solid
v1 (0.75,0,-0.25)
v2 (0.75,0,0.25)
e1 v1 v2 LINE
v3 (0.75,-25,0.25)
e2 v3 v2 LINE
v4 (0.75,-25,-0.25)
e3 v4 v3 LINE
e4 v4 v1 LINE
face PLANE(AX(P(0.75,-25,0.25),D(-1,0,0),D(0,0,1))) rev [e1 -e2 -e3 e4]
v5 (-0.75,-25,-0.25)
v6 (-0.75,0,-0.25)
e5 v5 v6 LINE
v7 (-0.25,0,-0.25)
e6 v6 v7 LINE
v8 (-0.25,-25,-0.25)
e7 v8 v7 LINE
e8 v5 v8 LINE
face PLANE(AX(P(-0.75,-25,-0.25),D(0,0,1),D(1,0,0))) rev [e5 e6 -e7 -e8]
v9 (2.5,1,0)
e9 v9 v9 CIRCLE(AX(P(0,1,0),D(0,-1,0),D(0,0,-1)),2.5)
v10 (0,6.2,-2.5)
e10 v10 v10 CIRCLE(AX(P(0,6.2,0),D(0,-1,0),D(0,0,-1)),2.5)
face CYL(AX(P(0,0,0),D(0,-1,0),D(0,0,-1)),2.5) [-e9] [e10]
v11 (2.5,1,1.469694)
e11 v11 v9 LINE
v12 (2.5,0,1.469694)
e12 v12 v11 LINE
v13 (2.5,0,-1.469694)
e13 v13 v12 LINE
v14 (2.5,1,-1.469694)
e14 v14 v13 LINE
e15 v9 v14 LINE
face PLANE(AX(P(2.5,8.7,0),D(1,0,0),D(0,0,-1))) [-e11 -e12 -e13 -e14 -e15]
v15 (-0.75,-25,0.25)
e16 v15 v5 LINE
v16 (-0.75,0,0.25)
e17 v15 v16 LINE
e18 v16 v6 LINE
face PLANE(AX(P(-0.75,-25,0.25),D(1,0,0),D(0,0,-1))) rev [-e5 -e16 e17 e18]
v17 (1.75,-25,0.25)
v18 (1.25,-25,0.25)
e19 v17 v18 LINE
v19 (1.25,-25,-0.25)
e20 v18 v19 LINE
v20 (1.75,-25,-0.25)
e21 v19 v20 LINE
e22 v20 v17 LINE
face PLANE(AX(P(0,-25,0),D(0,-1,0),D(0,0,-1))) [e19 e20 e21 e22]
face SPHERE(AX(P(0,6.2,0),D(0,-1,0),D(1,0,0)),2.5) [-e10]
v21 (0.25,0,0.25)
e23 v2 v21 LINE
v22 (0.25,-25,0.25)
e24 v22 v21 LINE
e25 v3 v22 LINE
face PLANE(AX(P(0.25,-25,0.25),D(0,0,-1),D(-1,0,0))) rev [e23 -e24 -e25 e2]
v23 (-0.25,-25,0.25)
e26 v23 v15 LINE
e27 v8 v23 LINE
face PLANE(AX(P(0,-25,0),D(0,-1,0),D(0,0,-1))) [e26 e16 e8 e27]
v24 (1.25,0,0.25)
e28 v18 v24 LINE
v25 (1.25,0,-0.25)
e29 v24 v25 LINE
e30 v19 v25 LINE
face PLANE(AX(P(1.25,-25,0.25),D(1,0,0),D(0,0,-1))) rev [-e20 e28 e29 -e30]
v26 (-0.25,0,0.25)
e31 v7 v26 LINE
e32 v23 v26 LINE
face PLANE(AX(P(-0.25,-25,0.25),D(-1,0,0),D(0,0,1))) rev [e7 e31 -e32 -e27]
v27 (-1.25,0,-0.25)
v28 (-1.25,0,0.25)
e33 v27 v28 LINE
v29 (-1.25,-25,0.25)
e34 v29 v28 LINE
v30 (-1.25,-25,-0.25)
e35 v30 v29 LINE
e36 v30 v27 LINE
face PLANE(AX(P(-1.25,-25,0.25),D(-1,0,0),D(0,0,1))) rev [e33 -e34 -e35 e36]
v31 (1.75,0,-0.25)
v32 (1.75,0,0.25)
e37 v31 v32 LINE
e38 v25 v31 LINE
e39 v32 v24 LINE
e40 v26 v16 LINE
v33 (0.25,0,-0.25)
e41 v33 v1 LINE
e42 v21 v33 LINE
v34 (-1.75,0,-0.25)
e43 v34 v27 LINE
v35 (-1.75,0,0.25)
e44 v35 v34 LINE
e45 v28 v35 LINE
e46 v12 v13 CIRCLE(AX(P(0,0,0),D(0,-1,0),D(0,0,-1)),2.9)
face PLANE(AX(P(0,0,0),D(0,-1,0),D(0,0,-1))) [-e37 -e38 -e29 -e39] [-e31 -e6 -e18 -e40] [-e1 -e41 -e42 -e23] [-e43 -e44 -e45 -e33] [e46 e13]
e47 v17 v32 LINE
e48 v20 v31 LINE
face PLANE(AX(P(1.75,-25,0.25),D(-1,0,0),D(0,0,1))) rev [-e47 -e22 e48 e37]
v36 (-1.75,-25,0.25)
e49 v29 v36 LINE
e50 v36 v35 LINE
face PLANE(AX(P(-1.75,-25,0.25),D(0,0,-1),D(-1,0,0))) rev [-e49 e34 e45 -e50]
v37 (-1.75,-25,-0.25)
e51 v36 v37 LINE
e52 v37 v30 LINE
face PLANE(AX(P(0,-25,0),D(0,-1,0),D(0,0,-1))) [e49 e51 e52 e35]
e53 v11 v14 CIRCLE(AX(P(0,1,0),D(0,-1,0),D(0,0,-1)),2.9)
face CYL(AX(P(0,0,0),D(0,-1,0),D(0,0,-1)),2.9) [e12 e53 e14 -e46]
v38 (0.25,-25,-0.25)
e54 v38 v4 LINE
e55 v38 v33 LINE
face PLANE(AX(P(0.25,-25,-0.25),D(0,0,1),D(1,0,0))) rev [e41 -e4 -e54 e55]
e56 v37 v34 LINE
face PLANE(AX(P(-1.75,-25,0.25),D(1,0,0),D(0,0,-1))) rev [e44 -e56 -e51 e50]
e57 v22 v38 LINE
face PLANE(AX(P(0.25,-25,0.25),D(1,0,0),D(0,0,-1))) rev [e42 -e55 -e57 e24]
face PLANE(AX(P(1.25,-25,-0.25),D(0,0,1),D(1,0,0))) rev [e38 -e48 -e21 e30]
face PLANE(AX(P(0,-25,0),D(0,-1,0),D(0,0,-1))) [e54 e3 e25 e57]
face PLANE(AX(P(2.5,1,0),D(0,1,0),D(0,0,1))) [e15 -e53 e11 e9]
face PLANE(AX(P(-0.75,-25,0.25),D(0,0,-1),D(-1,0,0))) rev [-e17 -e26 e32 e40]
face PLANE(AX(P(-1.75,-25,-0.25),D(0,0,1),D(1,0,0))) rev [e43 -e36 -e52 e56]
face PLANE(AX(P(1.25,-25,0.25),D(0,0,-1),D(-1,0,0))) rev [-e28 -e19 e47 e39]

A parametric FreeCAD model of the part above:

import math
import FreeCAD as App
import Part
import Sketcher

V = App.Vector


def add_polygon(sketch, points):
    """Adds a closed chain of lines whose ends are joined by coincident constraints."""
    first, n = sketch.GeometryCount, len(points)
    for a, b in zip(points, points[1:] + points[:1]):
        sketch.addGeometry(Part.LineSegment(App.Vector(*a, 0), App.Vector(*b, 0)), False)
    for i in range(n):
        sketch.addConstraint(Sketcher.Constraint("Coincident", first + i, 2, first + (i + 1) % n, 1))

doc = App.newDocument("Part")
params = doc.addObject("Spreadsheet::Sheet", "Params")
for row, (alias, value) in enumerate([
    ("sketch1_radius", "2.5 mm"),
    ("sketch1_height", "1 mm"),
    ("sketch1_width", "2.9 mm"),
    ("sketch1_height2", "5.2 mm"),
    ("revolution_angle", "360 deg"),
    ("sketch3_width", "0.5 mm"),
    ("pad1_length", "25 mm"),
], start=1):
    params.set(f"A{row}", alias)
    params.set(f"B{row}", "=" + value)
    params.setAlias(f"B{row}", alias)

body = doc.addObject("PartDesign::Body", "Body")

sketch1 = body.newObject("Sketcher::SketchObject", "Sketch")
sketch1.AttachmentSupport = (doc.getObject("XY_Plane"), [""])
sketch1.MapMode = "FlatFace"
sketch1.addGeometry(Part.LineSegment(V(0, 0, 0), V(2.9, 0, 0)), False)
sketch1.addGeometry(Part.LineSegment(V(2.9, 0, 0), V(2.9, 1, 0)), False)
sketch1.addGeometry(Part.LineSegment(V(2.9, 1, 0), V(2.5, 1, 0)), False)
sketch1.addGeometry(Part.LineSegment(V(2.5, 1, 0), V(2.5, 6.2, 0)), False)
sketch1.addGeometry(Part.ArcOfCircle(Part.Circle(V(0, 6.2, 0), V(0, 0, 1), 2.5), math.radians(0), math.radians(90)), False)
sketch1.addGeometry(Part.LineSegment(V(0, 8.7, 0), V(0, 0, 0)), False)
sketch1.addConstraint(Sketcher.Constraint("Coincident", 0, 2, 1, 1))
sketch1.addConstraint(Sketcher.Constraint("Coincident", 1, 2, 2, 1))
sketch1.addConstraint(Sketcher.Constraint("Coincident", 2, 2, 3, 1))
sketch1.addConstraint(Sketcher.Constraint("Tangent", 3, 2, 4, 1))
sketch1.addConstraint(Sketcher.Constraint("Coincident", 4, 2, 5, 1))
sketch1.addConstraint(Sketcher.Constraint("Coincident", 5, 2, 0, 1))
sketch1.addConstraint(Sketcher.Constraint("Horizontal", 0))
sketch1.addConstraint(Sketcher.Constraint("Vertical", 1))
sketch1.addConstraint(Sketcher.Constraint("Horizontal", 2))
sketch1.addConstraint(Sketcher.Constraint("Vertical", 3))
sketch1.addConstraint(Sketcher.Constraint("Vertical", 5))
sketch1.addConstraint(Sketcher.Constraint("Coincident", 5, 2, -1, 1))
sketch1.addConstraint(Sketcher.Constraint("PointOnObject", 4, 3, -2))
sketch1.addConstraint(Sketcher.Constraint("Radius", 4, 2.5))
sketch1.addConstraint(Sketcher.Constraint("DistanceY", 1, 1, 1, 2, 1.0))
sketch1.addConstraint(Sketcher.Constraint("DistanceX", 0, 1, 0, 2, 2.9))
sketch1.addConstraint(Sketcher.Constraint("DistanceY", 3, 1, 3, 2, 5.2))
sketch1.setExpression("Constraints[13]", "Params.sketch1_radius")
sketch1.setExpression("Constraints[14]", "Params.sketch1_height")
sketch1.setExpression("Constraints[15]", "Params.sketch1_width")
sketch1.setExpression("Constraints[16]", "Params.sketch1_height2")
revolution = body.newObject("PartDesign::Revolution", "Revolution")
revolution.Profile = sketch1
revolution.ReferenceAxis = (sketch1, ["V_Axis"])
revolution.setExpression("Angle", "Params.revolution_angle")

sketch2 = body.newObject("Sketcher::SketchObject", "Sketch001")
sketch2.AttachmentSupport = (doc.getObject("XZ_Plane"), [""])
sketch2.MapMode = "FlatFace"
add_polygon(sketch2, [(2.5, -2.5), (2.5, 2.2), (3.3, 2.2), (3.3, -2.5)])
sketch2.addConstraint(Sketcher.Constraint("Vertical", 0))
sketch2.addConstraint(Sketcher.Constraint("Horizontal", 1))
sketch2.addConstraint(Sketcher.Constraint("Vertical", 2))
sketch2.addConstraint(Sketcher.Constraint("Horizontal", 3))
sketch2.addConstraint(Sketcher.Constraint("DistanceX", -1, 1, 0, 2, 2.5))
sketch2.addConstraint(Sketcher.Constraint("DistanceY", 2, 2, -1, 1, 2.5))
sketch2.addConstraint(Sketcher.Constraint("DistanceX", 1, 1, 1, 2, 0.817011))
sketch2.addConstraint(Sketcher.Constraint("DistanceY", 0, 1, 0, 2, 4.686017))
pocket1 = body.newObject("PartDesign::Pocket", "Pocket")
pocket1.Profile = sketch2
pocket1.Type = "ThroughAll"
pocket1.Midplane = True

sketch3 = body.newObject("Sketcher::SketchObject", "Sketch002")
sketch3.AttachmentSupport = (doc.getObject("XZ_Plane"), [""])
sketch3.MapMode = "FlatFace"
add_polygon(sketch3, [(-1.8, 0.3), (-1.8, -0.3), (-1.2, -0.3), (-1.2, 0.3)])
add_polygon(sketch3, [(-0.8, 0.3), (-0.8, -0.3), (-0.2, -0.3), (-0.2, 0.3)])
add_polygon(sketch3, [(0.2, 0.3), (0.2, -0.3), (0.8, -0.3), (0.8, 0.3)])
add_polygon(sketch3, [(1.2, 0.3), (1.2, -0.3), (1.8, -0.3), (1.8, 0.3)])
sketch3.addConstraint(Sketcher.Constraint("Vertical", 0))
sketch3.addConstraint(Sketcher.Constraint("Horizontal", 1))
sketch3.addConstraint(Sketcher.Constraint("Vertical", 2))
sketch3.addConstraint(Sketcher.Constraint("Horizontal", 3))
sketch3.addConstraint(Sketcher.Constraint("Vertical", 4))
sketch3.addConstraint(Sketcher.Constraint("Horizontal", 5))
sketch3.addConstraint(Sketcher.Constraint("Vertical", 6))
sketch3.addConstraint(Sketcher.Constraint("Horizontal", 7))
sketch3.addConstraint(Sketcher.Constraint("Vertical", 8))
sketch3.addConstraint(Sketcher.Constraint("Horizontal", 9))
sketch3.addConstraint(Sketcher.Constraint("Vertical", 10))
sketch3.addConstraint(Sketcher.Constraint("Horizontal", 11))
sketch3.addConstraint(Sketcher.Constraint("Vertical", 12))
sketch3.addConstraint(Sketcher.Constraint("Horizontal", 13))
sketch3.addConstraint(Sketcher.Constraint("Vertical", 14))
sketch3.addConstraint(Sketcher.Constraint("Horizontal", 15))
sketch3.addConstraint(Sketcher.Constraint("Symmetric", 6, 2, 8, 2, -1, 1))
sketch3.addConstraint(Sketcher.Constraint("Symmetric", 4, 2, 10, 2, -1, 1))
sketch3.addConstraint(Sketcher.Constraint("Symmetric", 2, 2, 12, 2, -1, 1))
sketch3.addConstraint(Sketcher.Constraint("Symmetric", 0, 2, 14, 2, -1, 1))
sketch3.addConstraint(Sketcher.Constraint("Horizontal", 1, 2, 4, 2))
sketch3.addConstraint(Sketcher.Constraint("Horizontal", 3, 2, 6, 2))
sketch3.addConstraint(Sketcher.Constraint("Horizontal", 5, 2, 8, 2))
sketch3.addConstraint(Sketcher.Constraint("Equal", 3, 5))
sketch3.addConstraint(Sketcher.Constraint("Equal", 15, 0))
sketch3.addConstraint(Sketcher.Constraint("DistanceX", 1, 1, 1, 2, 0.5))
sketch3.addConstraint(Sketcher.Constraint("DistanceX", 0, 2, 4, 2, 1.0))
sketch3.addConstraint(Sketcher.Constraint("DistanceX", 4, 2, 8, 2, 1.0))
sketch3.setExpression("Constraints[41]", "Params.sketch3_width")
pad1 = body.newObject("PartDesign::Pad", "Pad")
pad1.Profile = sketch3
pad1.setExpression("Length", "Params.pad1_length")

doc.recompute()
